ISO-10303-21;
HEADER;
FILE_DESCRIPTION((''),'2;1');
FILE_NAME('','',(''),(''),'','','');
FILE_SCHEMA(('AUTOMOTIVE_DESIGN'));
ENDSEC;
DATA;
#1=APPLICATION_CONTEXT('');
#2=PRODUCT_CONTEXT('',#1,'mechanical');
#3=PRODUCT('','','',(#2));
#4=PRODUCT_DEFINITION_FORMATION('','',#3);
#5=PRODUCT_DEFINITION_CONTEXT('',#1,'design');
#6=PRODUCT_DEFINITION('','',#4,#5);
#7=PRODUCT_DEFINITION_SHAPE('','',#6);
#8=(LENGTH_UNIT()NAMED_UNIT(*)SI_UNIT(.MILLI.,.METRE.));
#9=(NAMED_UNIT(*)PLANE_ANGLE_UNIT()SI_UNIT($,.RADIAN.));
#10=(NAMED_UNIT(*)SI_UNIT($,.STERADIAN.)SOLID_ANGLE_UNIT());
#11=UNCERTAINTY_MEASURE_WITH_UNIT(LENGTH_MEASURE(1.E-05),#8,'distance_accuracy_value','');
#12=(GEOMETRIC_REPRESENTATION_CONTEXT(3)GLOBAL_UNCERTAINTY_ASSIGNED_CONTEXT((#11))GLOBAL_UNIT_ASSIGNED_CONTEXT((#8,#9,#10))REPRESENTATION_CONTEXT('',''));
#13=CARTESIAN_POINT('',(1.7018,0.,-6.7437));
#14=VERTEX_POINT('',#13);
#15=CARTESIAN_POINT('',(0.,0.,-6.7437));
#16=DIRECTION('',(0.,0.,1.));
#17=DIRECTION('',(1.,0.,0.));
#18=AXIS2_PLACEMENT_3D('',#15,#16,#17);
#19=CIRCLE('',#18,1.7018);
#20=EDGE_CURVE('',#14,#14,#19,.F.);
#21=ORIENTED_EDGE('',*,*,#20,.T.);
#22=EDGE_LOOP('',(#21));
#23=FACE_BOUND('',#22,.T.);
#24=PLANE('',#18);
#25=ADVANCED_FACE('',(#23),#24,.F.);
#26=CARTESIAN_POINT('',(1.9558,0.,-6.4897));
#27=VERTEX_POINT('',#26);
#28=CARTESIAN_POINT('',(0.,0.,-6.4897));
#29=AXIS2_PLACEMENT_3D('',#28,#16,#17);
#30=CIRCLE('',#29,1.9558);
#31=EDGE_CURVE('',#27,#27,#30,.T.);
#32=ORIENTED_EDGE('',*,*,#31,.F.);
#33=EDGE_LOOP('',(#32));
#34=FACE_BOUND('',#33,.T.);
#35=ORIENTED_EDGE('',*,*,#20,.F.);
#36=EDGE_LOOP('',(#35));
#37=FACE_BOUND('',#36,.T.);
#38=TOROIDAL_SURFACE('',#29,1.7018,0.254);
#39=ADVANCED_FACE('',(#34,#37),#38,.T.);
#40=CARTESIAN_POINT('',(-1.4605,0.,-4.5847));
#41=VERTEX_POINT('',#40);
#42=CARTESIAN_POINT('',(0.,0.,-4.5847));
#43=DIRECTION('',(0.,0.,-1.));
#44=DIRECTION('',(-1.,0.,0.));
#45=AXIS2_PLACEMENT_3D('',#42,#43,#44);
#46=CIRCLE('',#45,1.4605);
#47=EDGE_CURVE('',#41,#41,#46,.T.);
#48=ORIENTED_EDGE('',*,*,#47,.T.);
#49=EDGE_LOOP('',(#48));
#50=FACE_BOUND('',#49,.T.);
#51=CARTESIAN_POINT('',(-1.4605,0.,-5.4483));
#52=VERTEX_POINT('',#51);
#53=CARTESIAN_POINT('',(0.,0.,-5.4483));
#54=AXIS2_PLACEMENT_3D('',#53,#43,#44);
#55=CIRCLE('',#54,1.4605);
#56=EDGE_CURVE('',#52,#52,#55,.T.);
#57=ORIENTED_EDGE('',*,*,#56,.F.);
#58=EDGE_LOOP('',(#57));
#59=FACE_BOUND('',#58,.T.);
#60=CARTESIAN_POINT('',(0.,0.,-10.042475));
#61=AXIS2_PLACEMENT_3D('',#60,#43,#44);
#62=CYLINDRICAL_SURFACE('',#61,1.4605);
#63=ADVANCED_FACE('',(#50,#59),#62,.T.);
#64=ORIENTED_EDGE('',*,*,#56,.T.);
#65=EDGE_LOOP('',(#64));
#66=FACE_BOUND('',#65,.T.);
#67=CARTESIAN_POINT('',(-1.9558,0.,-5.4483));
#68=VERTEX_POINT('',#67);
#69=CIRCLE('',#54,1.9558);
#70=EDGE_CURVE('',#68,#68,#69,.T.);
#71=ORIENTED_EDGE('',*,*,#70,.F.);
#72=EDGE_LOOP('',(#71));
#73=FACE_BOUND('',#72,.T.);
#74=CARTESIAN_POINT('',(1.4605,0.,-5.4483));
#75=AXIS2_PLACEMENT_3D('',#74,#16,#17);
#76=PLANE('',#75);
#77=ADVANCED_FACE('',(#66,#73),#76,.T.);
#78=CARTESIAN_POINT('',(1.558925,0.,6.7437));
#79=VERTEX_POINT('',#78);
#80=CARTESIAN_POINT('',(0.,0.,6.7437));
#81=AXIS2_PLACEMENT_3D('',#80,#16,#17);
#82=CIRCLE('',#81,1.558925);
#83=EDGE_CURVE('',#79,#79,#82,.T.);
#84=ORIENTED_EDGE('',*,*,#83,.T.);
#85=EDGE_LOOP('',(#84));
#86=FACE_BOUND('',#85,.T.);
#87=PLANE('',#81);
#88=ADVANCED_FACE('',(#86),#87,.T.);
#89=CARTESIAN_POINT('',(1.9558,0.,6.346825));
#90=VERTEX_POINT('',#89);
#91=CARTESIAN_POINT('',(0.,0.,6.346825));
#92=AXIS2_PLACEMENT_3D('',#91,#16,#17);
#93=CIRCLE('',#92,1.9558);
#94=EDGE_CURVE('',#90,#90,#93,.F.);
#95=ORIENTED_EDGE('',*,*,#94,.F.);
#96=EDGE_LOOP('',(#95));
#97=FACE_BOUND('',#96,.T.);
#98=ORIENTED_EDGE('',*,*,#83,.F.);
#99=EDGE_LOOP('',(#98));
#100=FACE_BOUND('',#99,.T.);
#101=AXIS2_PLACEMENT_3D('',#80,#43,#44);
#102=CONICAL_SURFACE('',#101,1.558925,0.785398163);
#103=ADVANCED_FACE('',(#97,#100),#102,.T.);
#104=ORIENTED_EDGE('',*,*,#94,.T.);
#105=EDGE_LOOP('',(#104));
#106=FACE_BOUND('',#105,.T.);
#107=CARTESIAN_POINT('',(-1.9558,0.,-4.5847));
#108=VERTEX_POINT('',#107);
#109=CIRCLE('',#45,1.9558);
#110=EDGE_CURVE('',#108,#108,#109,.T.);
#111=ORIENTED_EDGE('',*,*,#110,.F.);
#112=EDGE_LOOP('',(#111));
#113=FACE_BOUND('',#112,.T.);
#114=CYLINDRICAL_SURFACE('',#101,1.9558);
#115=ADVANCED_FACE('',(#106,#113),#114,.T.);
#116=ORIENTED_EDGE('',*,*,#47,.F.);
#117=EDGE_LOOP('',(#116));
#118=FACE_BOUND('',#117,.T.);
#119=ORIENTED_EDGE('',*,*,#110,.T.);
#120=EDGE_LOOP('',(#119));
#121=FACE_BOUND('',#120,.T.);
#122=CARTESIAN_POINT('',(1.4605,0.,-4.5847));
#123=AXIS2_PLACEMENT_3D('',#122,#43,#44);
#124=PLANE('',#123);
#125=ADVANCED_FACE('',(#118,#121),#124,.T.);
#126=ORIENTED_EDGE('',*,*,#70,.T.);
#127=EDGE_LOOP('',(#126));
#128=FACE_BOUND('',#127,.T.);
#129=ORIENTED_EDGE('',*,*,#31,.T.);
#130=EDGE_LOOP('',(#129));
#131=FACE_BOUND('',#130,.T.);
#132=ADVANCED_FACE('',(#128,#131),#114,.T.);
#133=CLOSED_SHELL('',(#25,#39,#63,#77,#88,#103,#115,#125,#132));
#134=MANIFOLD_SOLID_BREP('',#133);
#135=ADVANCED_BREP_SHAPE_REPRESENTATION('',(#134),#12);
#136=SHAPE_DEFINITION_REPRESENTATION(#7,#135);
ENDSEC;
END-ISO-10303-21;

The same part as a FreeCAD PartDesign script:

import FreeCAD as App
import Part
import Sketcher

V = App.Vector
Q = App.Units.Quantity


def edges_at(feature, points):
    """Names of the edges that pass closest to the given points."""
    edges = feature.Shape.Edges
    near = lambda p: min(range(len(edges)), key=lambda i: edges[i].distToShape(Part.Vertex(*p))[0])
    return sorted({f"Edge{near(p) + 1}" for p in points})


def add_polygon(sketch, points):
    """Adds a closed chain of lines whose ends are joined by coincident constraints."""
    first, n = sketch.GeometryCount, len(points)
    for a, b in zip(points, points[1:] + points[:1]):
        sketch.addGeometry(Part.LineSegment(App.Vector(*a, 0), App.Vector(*b, 0)), False)
    for i in range(n):
        sketch.addConstraint(Sketcher.Constraint("Coincident", first + i, 2, first + (i + 1) % n, 1))

doc = App.newDocument("Part")
body = doc.addObject("PartDesign::Body", "Body")

# Sketch on XY plane
sketch1 = body.newObject("Sketcher::SketchObject", "Sketch")
sketch1.AttachmentSupport = (doc.getObject("XY_Plane"), [""])
sketch1.MapMode = "FlatFace"
sketch1.addGeometry(Part.Circle(V(0, 0, 0), V(0, 0, 1), 1.9558), False)
sketch1.addConstraint([
    Sketcher.Constraint("Coincident", 0, 3, -1, 1),
    Sketcher.Constraint("Diameter", 0, Q("0.154 in")),
])
pad1 = body.newObject("PartDesign::Pad", "Pad")
pad1.Profile = sketch1
pad1.Length = Q("0.531 in")
pad1.Midplane = True

# Sketch on XZ plane
sketch2 = body.newObject("Sketcher::SketchObject", "Sketch001")
sketch2.AttachmentSupport = (doc.getObject("XZ_Plane"), [""])
sketch2.MapMode = "FlatFace"
add_polygon(sketch2, [(1.4605, -5.4483), (1.4605, -4.5847), (1.9558, -4.5847), (1.9558, -5.4483)])  # lines 0-3
sketch2.addConstraint([
    Sketcher.Constraint("Vertical", 0),
    Sketcher.Constraint("Horizontal", 1),
    Sketcher.Constraint("Vertical", 2),
    Sketcher.Constraint("Horizontal", 3),
    Sketcher.Constraint("DistanceY", 0, 1, 0, 2, Q("0.034 in")),
    Sketcher.Constraint("DistanceX", 1, 1, 1, 2, Q("0.0195 in")),
    Sketcher.Constraint("DistanceX", -1, 1, 1, 2, Q("0.077 in")),
    Sketcher.Constraint("DistanceY", 0, 2, -1, 1, Q("0.1805 in")),
])
groove = body.newObject("PartDesign::Groove", "Groove")
groove.Profile = sketch2
groove.ReferenceAxis = (sketch2, ["V_Axis"])
groove.Angle = 360
doc.recompute()

fillet = body.newObject("PartDesign::Fillet", "Fillet")
fillet.Base = (groove, edges_at(groove, [(-1.956, 0, -6.744)]))
fillet.Radius = Q("0.01 in")
doc.recompute()

chamfer = body.newObject("PartDesign::Chamfer", "Chamfer")
chamfer.Base = (fillet, edges_at(fillet, [(-1.956, 0, 6.744)]))
chamfer.Size = Q("0.015625 in")

doc.recompute()
